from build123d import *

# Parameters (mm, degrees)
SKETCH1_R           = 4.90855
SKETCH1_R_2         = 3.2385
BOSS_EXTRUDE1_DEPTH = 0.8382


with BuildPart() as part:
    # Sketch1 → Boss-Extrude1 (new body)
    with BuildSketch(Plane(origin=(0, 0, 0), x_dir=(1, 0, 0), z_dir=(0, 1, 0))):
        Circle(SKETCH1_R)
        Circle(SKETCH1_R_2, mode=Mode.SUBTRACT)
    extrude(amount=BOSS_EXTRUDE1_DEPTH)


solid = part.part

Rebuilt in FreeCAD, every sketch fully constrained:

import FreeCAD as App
import Part
import Sketcher
from FreeCAD import Vector
Q = App.Units.Quantity

doc = App.newDocument("Part")
body = doc.addObject("PartDesign::Body", "Body")

sketch1 = body.newObject("Sketcher::SketchObject", "Sketch")
sketch1.AttachmentSupport = (doc.getObject("XZ_Plane"), [""])
sketch1.MapMode = "FlatFace"
sketch1.addGeometry([
    Part.Circle(Vector(0, 0, 0), Vector(0, 0, 1), 4.9),
    Part.Circle(Vector(0, 0, 0), Vector(0, 0, 1), 3.2),
], False)
sketch1.addConstraint([
    Sketcher.Constraint("Coincident", 0, 3, -1, 1),
    Sketcher.Constraint("Coincident", 1, 3, -1, 1),
    Sketcher.Constraint("Diameter", 1, Q("0.255 in")),
    Sketcher.Constraint("Diameter", 0, Q("0.3865 in")),
])
pad1 = body.newObject("PartDesign::Pad", "Pad")
pad1.Profile = sketch1
pad1.Length = Q("0.033 in")
pad1.Reversed = True

doc.recompute()
